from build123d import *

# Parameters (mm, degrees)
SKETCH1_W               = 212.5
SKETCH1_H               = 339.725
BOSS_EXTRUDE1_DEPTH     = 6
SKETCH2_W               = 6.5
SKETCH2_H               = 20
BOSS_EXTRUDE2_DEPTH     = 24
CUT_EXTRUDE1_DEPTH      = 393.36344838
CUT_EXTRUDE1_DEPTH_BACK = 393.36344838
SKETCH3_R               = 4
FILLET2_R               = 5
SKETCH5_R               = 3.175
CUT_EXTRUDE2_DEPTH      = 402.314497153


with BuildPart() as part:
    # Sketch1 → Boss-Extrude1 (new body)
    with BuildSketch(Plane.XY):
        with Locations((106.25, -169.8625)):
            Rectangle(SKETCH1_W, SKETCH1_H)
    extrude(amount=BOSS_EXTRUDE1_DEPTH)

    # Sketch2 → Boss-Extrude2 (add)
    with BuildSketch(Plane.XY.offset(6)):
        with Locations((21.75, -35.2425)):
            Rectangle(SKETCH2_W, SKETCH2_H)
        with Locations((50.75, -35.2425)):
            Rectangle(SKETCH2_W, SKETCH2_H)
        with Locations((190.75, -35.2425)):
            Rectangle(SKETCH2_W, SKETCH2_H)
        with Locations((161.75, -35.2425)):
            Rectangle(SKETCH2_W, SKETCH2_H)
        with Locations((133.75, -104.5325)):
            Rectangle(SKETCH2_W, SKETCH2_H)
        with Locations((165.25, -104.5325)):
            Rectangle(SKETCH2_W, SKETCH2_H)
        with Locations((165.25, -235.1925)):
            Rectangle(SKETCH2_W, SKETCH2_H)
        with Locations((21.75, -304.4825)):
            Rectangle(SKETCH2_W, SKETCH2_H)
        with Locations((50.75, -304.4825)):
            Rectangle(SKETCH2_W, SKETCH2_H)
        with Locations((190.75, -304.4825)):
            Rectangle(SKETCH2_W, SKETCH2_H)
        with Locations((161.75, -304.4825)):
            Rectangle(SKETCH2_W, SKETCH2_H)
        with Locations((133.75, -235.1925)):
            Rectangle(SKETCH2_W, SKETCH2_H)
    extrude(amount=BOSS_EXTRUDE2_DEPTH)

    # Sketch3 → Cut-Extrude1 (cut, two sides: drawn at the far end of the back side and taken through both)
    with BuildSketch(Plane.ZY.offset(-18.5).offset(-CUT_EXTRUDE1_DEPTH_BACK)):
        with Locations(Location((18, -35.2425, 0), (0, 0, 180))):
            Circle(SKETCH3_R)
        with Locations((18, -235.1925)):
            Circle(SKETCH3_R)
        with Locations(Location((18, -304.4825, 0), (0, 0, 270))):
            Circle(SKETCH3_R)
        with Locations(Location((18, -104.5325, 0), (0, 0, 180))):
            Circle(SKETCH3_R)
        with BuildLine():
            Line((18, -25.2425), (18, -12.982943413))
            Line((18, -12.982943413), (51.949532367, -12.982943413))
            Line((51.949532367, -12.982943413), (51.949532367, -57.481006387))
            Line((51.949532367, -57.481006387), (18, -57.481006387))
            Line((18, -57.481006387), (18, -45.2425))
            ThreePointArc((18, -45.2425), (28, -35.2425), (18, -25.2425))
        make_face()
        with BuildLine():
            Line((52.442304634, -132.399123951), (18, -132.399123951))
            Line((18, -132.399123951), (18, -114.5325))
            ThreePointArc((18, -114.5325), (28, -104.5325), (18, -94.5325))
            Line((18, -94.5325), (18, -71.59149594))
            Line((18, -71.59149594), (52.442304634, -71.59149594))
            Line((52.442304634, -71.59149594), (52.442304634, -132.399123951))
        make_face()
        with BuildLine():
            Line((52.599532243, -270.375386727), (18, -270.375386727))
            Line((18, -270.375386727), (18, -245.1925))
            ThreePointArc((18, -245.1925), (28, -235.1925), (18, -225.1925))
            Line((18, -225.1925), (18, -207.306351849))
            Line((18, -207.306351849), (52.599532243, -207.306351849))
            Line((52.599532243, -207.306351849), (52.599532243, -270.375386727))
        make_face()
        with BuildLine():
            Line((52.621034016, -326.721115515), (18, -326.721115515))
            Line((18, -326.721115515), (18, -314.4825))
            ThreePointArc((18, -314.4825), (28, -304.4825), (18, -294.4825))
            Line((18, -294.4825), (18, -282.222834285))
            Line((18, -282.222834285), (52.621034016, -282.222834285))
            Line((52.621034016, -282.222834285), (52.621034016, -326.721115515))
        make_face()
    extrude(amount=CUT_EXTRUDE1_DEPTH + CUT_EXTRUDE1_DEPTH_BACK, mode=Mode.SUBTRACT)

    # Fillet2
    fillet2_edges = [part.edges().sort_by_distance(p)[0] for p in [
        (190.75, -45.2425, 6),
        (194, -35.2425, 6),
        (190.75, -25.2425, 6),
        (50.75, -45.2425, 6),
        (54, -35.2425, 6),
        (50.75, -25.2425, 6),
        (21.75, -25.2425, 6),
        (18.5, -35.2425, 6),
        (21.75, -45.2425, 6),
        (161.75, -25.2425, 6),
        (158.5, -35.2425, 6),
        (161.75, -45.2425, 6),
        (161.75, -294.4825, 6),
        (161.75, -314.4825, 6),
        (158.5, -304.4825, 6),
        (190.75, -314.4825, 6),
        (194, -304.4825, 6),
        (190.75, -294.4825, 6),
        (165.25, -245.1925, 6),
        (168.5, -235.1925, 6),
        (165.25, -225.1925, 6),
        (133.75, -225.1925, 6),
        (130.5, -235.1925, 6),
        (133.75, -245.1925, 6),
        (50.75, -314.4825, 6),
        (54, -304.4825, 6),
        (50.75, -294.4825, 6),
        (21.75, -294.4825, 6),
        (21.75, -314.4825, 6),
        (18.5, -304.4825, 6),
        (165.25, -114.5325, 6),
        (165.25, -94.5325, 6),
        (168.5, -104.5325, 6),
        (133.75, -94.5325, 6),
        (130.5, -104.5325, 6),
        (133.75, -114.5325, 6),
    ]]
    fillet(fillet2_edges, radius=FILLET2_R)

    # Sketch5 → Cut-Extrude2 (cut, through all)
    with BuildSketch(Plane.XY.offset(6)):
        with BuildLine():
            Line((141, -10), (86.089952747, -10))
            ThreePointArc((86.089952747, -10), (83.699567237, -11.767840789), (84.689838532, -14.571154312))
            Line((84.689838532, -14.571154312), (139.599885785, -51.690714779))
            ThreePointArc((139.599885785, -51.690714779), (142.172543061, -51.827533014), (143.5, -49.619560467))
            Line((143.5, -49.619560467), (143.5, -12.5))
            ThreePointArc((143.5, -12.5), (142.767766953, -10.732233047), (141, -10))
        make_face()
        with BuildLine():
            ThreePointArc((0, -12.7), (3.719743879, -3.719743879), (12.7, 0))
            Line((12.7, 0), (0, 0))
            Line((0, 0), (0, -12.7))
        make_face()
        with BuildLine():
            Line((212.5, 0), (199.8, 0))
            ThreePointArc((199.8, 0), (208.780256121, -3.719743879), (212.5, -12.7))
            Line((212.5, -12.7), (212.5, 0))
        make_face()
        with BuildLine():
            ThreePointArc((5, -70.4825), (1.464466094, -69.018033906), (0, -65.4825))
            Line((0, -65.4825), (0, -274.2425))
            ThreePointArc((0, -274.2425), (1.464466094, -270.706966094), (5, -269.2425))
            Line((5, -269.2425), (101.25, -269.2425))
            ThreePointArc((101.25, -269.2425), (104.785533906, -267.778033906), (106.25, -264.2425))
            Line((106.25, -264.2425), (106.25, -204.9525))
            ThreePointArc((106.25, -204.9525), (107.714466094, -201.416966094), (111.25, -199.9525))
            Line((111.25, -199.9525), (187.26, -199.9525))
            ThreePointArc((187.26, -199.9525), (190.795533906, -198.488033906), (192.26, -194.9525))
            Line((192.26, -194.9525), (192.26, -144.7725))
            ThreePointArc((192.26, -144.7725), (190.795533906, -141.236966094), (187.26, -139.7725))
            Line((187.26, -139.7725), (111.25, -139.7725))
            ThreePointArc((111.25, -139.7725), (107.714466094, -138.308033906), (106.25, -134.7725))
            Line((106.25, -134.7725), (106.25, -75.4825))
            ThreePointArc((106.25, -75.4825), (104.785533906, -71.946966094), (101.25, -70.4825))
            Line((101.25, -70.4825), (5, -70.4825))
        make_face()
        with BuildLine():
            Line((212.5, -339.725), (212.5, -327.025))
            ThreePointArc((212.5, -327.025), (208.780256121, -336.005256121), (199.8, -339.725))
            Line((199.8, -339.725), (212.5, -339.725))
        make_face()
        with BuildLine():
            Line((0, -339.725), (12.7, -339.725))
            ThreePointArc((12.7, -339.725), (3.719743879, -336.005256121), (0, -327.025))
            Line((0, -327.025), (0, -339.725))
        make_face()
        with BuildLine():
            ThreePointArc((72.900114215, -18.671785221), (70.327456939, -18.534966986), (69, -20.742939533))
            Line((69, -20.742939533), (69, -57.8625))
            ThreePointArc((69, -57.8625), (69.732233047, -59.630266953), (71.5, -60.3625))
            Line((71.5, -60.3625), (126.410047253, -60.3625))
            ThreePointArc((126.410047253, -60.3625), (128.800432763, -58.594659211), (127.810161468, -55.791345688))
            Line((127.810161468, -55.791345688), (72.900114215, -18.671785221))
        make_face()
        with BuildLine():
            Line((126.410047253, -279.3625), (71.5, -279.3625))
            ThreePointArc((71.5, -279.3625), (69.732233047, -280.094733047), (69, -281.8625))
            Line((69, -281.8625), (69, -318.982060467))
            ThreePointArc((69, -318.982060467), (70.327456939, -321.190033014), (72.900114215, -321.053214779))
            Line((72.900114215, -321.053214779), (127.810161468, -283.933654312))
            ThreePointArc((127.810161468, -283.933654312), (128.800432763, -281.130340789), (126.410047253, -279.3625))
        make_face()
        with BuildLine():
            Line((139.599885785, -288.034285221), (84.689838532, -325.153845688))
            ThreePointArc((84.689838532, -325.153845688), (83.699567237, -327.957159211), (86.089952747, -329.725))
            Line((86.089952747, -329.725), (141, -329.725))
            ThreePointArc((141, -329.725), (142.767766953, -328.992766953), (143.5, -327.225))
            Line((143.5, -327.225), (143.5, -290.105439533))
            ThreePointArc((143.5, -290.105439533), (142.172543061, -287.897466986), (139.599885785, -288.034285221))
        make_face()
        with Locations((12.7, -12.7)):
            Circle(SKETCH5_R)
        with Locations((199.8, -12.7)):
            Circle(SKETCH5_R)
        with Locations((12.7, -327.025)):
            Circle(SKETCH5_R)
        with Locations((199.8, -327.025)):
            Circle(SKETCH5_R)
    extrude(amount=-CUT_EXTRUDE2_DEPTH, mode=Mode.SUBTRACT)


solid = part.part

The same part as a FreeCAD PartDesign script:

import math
import FreeCAD as App
import Part
import Sketcher

V = App.Vector


def edges_at(feature, points):
    """Names of the edges that pass closest to the given points."""
    edges = feature.Shape.Edges
    near = lambda p: min(range(len(edges)), key=lambda i: edges[i].distToShape(Part.Vertex(*p))[0])
    return sorted({f"Edge{near(p) + 1}" for p in points})

doc = App.newDocument("Part")
body = doc.addObject("PartDesign::Body", "Body")

# Sketch on XY plane
sketch1 = body.newObject("Sketcher::SketchObject", "Sketch")
sketch1.AttachmentSupport = (doc.getObject("XY_Plane"), [""])
sketch1.MapMode = "FlatFace"
sketch1.addGeometry([
    Part.LineSegment(V(0, 0, 0), V(0, -339.725, 0)),
    Part.LineSegment(V(0, -339.725, 0), V(212.5, -339.725, 0)),
    Part.LineSegment(V(212.5, -339.725, 0), V(212.5, 0, 0)),
    Part.LineSegment(V(212.5, 0, 0), V(0, 0, 0)),
], False)
sketch1.addConstraint([
    Sketcher.Constraint("Coincident", 0, 2, 1, 1),
    Sketcher.Constraint("Coincident", 1, 2, 2, 1),
    Sketcher.Constraint("Coincident", 2, 2, 3, 1),
    Sketcher.Constraint("Coincident", 3, 2, 0, 1),
    Sketcher.Constraint("Vertical", 0),
    Sketcher.Constraint("Horizontal", 1),
    Sketcher.Constraint("Vertical", 2),
    Sketcher.Constraint("Horizontal", 3),
    Sketcher.Constraint("Coincident", 3, 2, -1, 1),
    Sketcher.Constraint("DistanceX", 1, 1, 1, 2, 212.5),
    Sketcher.Constraint("DistanceY", 0, 2, 0, 1, 339.725),
])
pad1 = body.newObject("PartDesign::Pad", "Pad")
pad1.Profile = sketch1
pad1.Length = 6

# Sketch on XY plane
sketch2 = body.newObject("Sketcher::SketchObject", "Sketch001")
sketch2.AttachmentSupport = (doc.getObject("XY_Plane"), [""])
sketch2.MapMode = "FlatFace"
sketch2.AttachmentOffset = App.Placement(V(0, 0, 6), App.Rotation())
sketch2.addGeometry([
    Part.LineSegment(V(18.5, -25.2425, 0), V(18.5, -45.2425, 0)),  # 0
    Part.LineSegment(V(18.5, -45.2425, 0), V(25, -45.2425, 0)),  # 1
    Part.LineSegment(V(25, -45.2425, 0), V(25, -25.2425, 0)),  # 2
    Part.LineSegment(V(25, -25.2425, 0), V(18.5, -25.2425, 0)),  # 3
    Part.LineSegment(V(47.5, -25.2425, 0), V(47.5, -45.2425, 0)),  # 4
    Part.LineSegment(V(47.5, -45.2425, 0), V(54, -45.2425, 0)),  # 5
    Part.LineSegment(V(54, -45.2425, 0), V(54, -25.2425, 0)),  # 6
    Part.LineSegment(V(54, -25.2425, 0), V(47.5, -25.2425, 0)),  # 7
    Part.LineSegment(V(187.5, -25.2425, 0), V(187.5, -45.2425, 0)),  # 8
    Part.LineSegment(V(187.5, -45.2425, 0), V(194, -45.2425, 0)),  # 9
    Part.LineSegment(V(194, -45.2425, 0), V(194, -25.2425, 0)),  # 10
    Part.LineSegment(V(194, -25.2425, 0), V(187.5, -25.2425, 0)),  # 11
    Part.LineSegment(V(158.5, -25.2425, 0), V(158.5, -45.2425, 0)),  # 12
    Part.LineSegment(V(158.5, -45.2425, 0), V(165, -45.2425, 0)),  # 13
    Part.LineSegment(V(165, -45.2425, 0), V(165, -25.2425, 0)),  # 14
    Part.LineSegment(V(165, -25.2425, 0), V(158.5, -25.2425, 0)),  # 15
    Part.LineSegment(V(130.5, -94.5325, 0), V(130.5, -114.5325, 0)),  # 16
    Part.LineSegment(V(130.5, -114.5325, 0), V(137, -114.5325, 0)),  # 17
    Part.LineSegment(V(137, -114.5325, 0), V(137, -94.5325, 0)),  # 18
    Part.LineSegment(V(137, -94.5325, 0), V(130.5, -94.5325, 0)),  # 19
    Part.LineSegment(V(162, -94.5325, 0), V(162, -114.5325, 0)),  # 20
    Part.LineSegment(V(162, -114.5325, 0), V(168.5, -114.5325, 0)),  # 21
    Part.LineSegment(V(168.5, -114.5325, 0), V(168.5, -94.5325, 0)),  # 22
    Part.LineSegment(V(168.5, -94.5325, 0), V(162, -94.5325, 0)),  # 23
    Part.LineSegment(V(162, -225.1925, 0), V(162, -245.1925, 0)),  # 24
    Part.LineSegment(V(162, -245.1925, 0), V(168.5, -245.1925, 0)),  # 25
    Part.LineSegment(V(168.5, -245.1925, 0), V(168.5, -225.1925, 0)),  # 26
    Part.LineSegment(V(168.5, -225.1925, 0), V(162, -225.1925, 0)),  # 27
    Part.LineSegment(V(18.5, -294.4825, 0), V(18.5, -314.4825, 0)),  # 28
    Part.LineSegment(V(18.5, -314.4825, 0), V(25, -314.4825, 0)),  # 29
    Part.LineSegment(V(25, -314.4825, 0), V(25, -294.4825, 0)),  # 30
    Part.LineSegment(V(25, -294.4825, 0), V(18.5, -294.4825, 0)),  # 31
    Part.LineSegment(V(47.5, -294.4825, 0), V(47.5, -314.4825, 0)),  # 32
    Part.LineSegment(V(47.5, -314.4825, 0), V(54, -314.4825, 0)),  # 33
    Part.LineSegment(V(54, -314.4825, 0), V(54, -294.4825, 0)),  # 34
    Part.LineSegment(V(54, -294.4825, 0), V(47.5, -294.4825, 0)),  # 35
    Part.LineSegment(V(187.5, -294.4825, 0), V(187.5, -314.4825, 0)),  # 36
    Part.LineSegment(V(187.5, -314.4825, 0), V(194, -314.4825, 0)),  # 37
    Part.LineSegment(V(194, -314.4825, 0), V(194, -294.4825, 0)),  # 38
    Part.LineSegment(V(194, -294.4825, 0), V(187.5, -294.4825, 0)),  # 39
    Part.LineSegment(V(158.5, -294.4825, 0), V(158.5, -314.4825, 0)),  # 40
    Part.LineSegment(V(158.5, -314.4825, 0), V(165, -314.4825, 0)),  # 41
    Part.LineSegment(V(165, -314.4825, 0), V(165, -294.4825, 0)),  # 42
    Part.LineSegment(V(165, -294.4825, 0), V(158.5, -294.4825, 0)),  # 43
    Part.LineSegment(V(130.5, -225.1925, 0), V(130.5, -245.1925, 0)),  # 44
    Part.LineSegment(V(130.5, -245.1925, 0), V(137, -245.1925, 0)),  # 45
    Part.LineSegment(V(137, -245.1925, 0), V(137, -225.1925, 0)),  # 46
    Part.LineSegment(V(137, -225.1925, 0), V(130.5, -225.1925, 0)),  # 47
], False)
sketch2.addConstraint([
    Sketcher.Constraint("Coincident", 0, 2, 1, 1),
    Sketcher.Constraint("Coincident", 1, 2, 2, 1),
    Sketcher.Constraint("Coincident", 2, 2, 3, 1),
    Sketcher.Constraint("Coincident", 3, 2, 0, 1),
    Sketcher.Constraint("Coincident", 4, 2, 5, 1),
    Sketcher.Constraint("Coincident", 5, 2, 6, 1),
    Sketcher.Constraint("Coincident", 6, 2, 7, 1),
    Sketcher.Constraint("Coincident", 7, 2, 4, 1),
    Sketcher.Constraint("Coincident", 8, 2, 9, 1),
    Sketcher.Constraint("Coincident", 9, 2, 10, 1),
    Sketcher.Constraint("Coincident", 10, 2, 11, 1),
    Sketcher.Constraint("Coincident", 11, 2, 8, 1),
    Sketcher.Constraint("Coincident", 12, 2, 13, 1),
    Sketcher.Constraint("Coincident", 13, 2, 14, 1),
    Sketcher.Constraint("Coincident", 14, 2, 15, 1),
    Sketcher.Constraint("Coincident", 15, 2, 12, 1),
    Sketcher.Constraint("Coincident", 16, 2, 17, 1),
    Sketcher.Constraint("Coincident", 17, 2, 18, 1),
    Sketcher.Constraint("Coincident", 18, 2, 19, 1),
    Sketcher.Constraint("Coincident", 19, 2, 16, 1),
    Sketcher.Constraint("Coincident", 20, 2, 21, 1),
    Sketcher.Constraint("Coincident", 21, 2, 22, 1),
    Sketcher.Constraint("Coincident", 22, 2, 23, 1),
    Sketcher.Constraint("Coincident", 23, 2, 20, 1),
    Sketcher.Constraint("Coincident", 24, 2, 25, 1),
    Sketcher.Constraint("Coincident", 25, 2, 26, 1),
    Sketcher.Constraint("Coincident", 26, 2, 27, 1),
    Sketcher.Constraint("Coincident", 27, 2, 24, 1),
    Sketcher.Constraint("Coincident", 28, 2, 29, 1),
    Sketcher.Constraint("Coincident", 29, 2, 30, 1),
    Sketcher.Constraint("Coincident", 30, 2, 31, 1),
    Sketcher.Constraint("Coincident", 31, 2, 28, 1),
    Sketcher.Constraint("Coincident", 32, 2, 33, 1),
    Sketcher.Constraint("Coincident", 33, 2, 34, 1),
    Sketcher.Constraint("Coincident", 34, 2, 35, 1),
    Sketcher.Constraint("Coincident", 35, 2, 32, 1),
    Sketcher.Constraint("Coincident", 36, 2, 37, 1),
    Sketcher.Constraint("Coincident", 37, 2, 38, 1),
    Sketcher.Constraint("Coincident", 38, 2, 39, 1),
    Sketcher.Constraint("Coincident", 39, 2, 36, 1),
    Sketcher.Constraint("Coincident", 40, 2, 41, 1),
    Sketcher.Constraint("Coincident", 41, 2, 42, 1),
    Sketcher.Constraint("Coincident", 42, 2, 43, 1),
    Sketcher.Constraint("Coincident", 43, 2, 40, 1),
    Sketcher.Constraint("Coincident", 44, 2, 45, 1),
    Sketcher.Constraint("Coincident", 45, 2, 46, 1),
    Sketcher.Constraint("Coincident", 46, 2, 47, 1),
    Sketcher.Constraint("Coincident", 47, 2, 44, 1),
    Sketcher.Constraint("Vertical", 0),
    Sketcher.Constraint("Horizontal", 1),
    Sketcher.Constraint("Vertical", 2),
    Sketcher.Constraint("Horizontal", 3),
    Sketcher.Constraint("Vertical", 4),
    Sketcher.Constraint("Horizontal", 5),
    Sketcher.Constraint("Vertical", 6),
    Sketcher.Constraint("Horizontal", 7),
    Sketcher.Constraint("Vertical", 8),
    Sketcher.Constraint("Horizontal", 9),
    Sketcher.Constraint("Vertical", 10),
    Sketcher.Constraint("Horizontal", 11),
    Sketcher.Constraint("Vertical", 12),
    Sketcher.Constraint("Horizontal", 13),
    Sketcher.Constraint("Vertical", 14),
    Sketcher.Constraint("Horizontal", 15),
    Sketcher.Constraint("Vertical", 16),
    Sketcher.Constraint("Horizontal", 17),
    Sketcher.Constraint("Vertical", 18),
    Sketcher.Constraint("Horizontal", 19),
    Sketcher.Constraint("Vertical", 20),
    Sketcher.Constraint("Horizontal", 21),
    Sketcher.Constraint("Vertical", 22),
    Sketcher.Constraint("Horizontal", 23),
    Sketcher.Constraint("Vertical", 24),
    Sketcher.Constraint("Horizontal", 25),
    Sketcher.Constraint("Vertical", 26),
    Sketcher.Constraint("Horizontal", 27),
    Sketcher.Constraint("Vertical", 28),
    Sketcher.Constraint("Horizontal", 29),
    Sketcher.Constraint("Vertical", 30),
    Sketcher.Constraint("Horizontal", 31),
    Sketcher.Constraint("Vertical", 32),
    Sketcher.Constraint("Horizontal", 33),
    Sketcher.Constraint("Vertical", 34),
    Sketcher.Constraint("Horizontal", 35),
    Sketcher.Constraint("Vertical", 36),
    Sketcher.Constraint("Horizontal", 37),
    Sketcher.Constraint("Vertical", 38),
    Sketcher.Constraint("Horizontal", 39),
    Sketcher.Constraint("Vertical", 40),
    Sketcher.Constraint("Horizontal", 41),
    Sketcher.Constraint("Vertical", 42),
    Sketcher.Constraint("Horizontal", 43),
    Sketcher.Constraint("Vertical", 44),
    Sketcher.Constraint("Horizontal", 45),
    Sketcher.Constraint("Vertical", 46),
    Sketcher.Constraint("Horizontal", 47),
    Sketcher.Constraint("Horizontal", 1, 2, 4, 2),
    Sketcher.Constraint("Horizontal", 3, 2, 6, 2),
    Sketcher.Constraint("Horizontal", 5, 2, 8, 2),
    Sketcher.Constraint("Horizontal", 7, 2, 10, 2),
    Sketcher.Constraint("Horizontal", 9, 2, 12, 2),
    Sketcher.Constraint("Horizontal", 11, 2, 14, 2),
    Sketcher.Constraint("Horizontal", 17, 2, 20, 2),
    Sketcher.Constraint("Horizontal", 19, 2, 22, 2),
    Sketcher.Constraint("Horizontal", 29, 2, 32, 2),
    Sketcher.Constraint("Horizontal", 31, 2, 34, 2),
    Sketcher.Constraint("Horizontal", 33, 2, 36, 2),
    Sketcher.Constraint("Horizontal", 35, 2, 38, 2),
    Sketcher.Constraint("Horizontal", 37, 2, 40, 2),
    Sketcher.Constraint("Horizontal", 39, 2, 42, 2),
    Sketcher.Constraint("Horizontal", 25, 2, 44, 2),
    Sketcher.Constraint("Horizontal", 27, 2, 46, 2),
    Sketcher.Constraint("Vertical", 23, 2, 24, 2),
    Sketcher.Constraint("Vertical", 22, 2, 25, 2),
    Sketcher.Constraint("Vertical", 3, 2, 28, 2),
    Sketcher.Constraint("Vertical", 2, 2, 29, 2),
    Sketcher.Constraint("Vertical", 7, 2, 32, 2),
    Sketcher.Constraint("Vertical", 6, 2, 33, 2),
    Sketcher.Constraint("Vertical", 11, 2, 36, 2),
    Sketcher.Constraint("Vertical", 10, 2, 37, 2),
    Sketcher.Constraint("Vertical", 15, 2, 40, 2),
    Sketcher.Constraint("Vertical", 14, 2, 41, 2),
    Sketcher.Constraint("Vertical", 19, 2, 44, 2),
    Sketcher.Constraint("Vertical", 18, 2, 45, 2),
    Sketcher.Constraint("Equal", 3, 5),
    Sketcher.Constraint("Equal", 7, 9),
    Sketcher.Constraint("Equal", 11, 13),
    Sketcher.Constraint("Equal", 15, 17),
    Sketcher.Constraint("Equal", 19, 21),
    Sketcher.Constraint("Equal", 14, 16),
    Sketcher.Constraint("Equal", 22, 24),
    Sketcher.Constraint("Equal", 26, 28),
    Sketcher.Constraint("DistanceY", 0, 2, 0, 1, 20.0),
    Sketcher.Constraint("DistanceX", 1, 1, 1, 2, 6.5),
    Sketcher.Constraint("DistanceX", -1, 1, 1, 2, 25.0),
    Sketcher.Constraint("DistanceX", -1, 1, 5, 2, 54.0),
    Sketcher.Constraint("DistanceX", -1, 1, 9, 2, 194.0),
    Sketcher.Constraint("DistanceX", -1, 1, 13, 2, 165.0),
    Sketcher.Constraint("DistanceX", -1, 1, 17, 2, 137.0),
    Sketcher.Constraint("DistanceX", -1, 1, 20, 2, 162.0),
    Sketcher.Constraint("DistanceY", 16, 2, 12, 2, 69.29),
    Sketcher.Constraint("DistanceY", 24, 2, 20, 2, 130.66),
    Sketcher.Constraint("DistanceY", 28, 2, 24, 2, 69.29),
    Sketcher.Constraint("DistanceY", 0, 2, -1, 1, 45.2425),
])
pad2 = body.newObject("PartDesign::Pad", "Pad001")
pad2.Profile = sketch2
pad2.Length = 24

# Sketch on YZ plane
sketch3 = body.newObject("Sketcher::SketchObject", "Sketch002")
sketch3.AttachmentSupport = (doc.getObject("YZ_Plane"), [""])
sketch3.MapMode = "FlatFace"
sketch3.AttachmentOffset = App.Placement(V(0, 0, 18.5), App.Rotation())
sketch3.addGeometry([
    Part.Circle(V(-35.2425, 18, 0), V(0, 0, 1), 4),  # 0
    Part.Circle(V(-235.1925, 18, 0), V(0, 0, 1), 4),  # 1
    Part.Circle(V(-304.4825, 18, 0), V(0, 0, 1), 4),  # 2
    Part.Circle(V(-104.5325, 18, 0), V(0, 0, 1), 4),  # 3
    Part.LineSegment(V(-12.982943, 18, 0), V(-25.2425, 18, 0)),  # 4
    Part.ArcOfCircle(Part.Circle(V(-35.2425, 18, 0), V(0, 0, 1), 10), math.radians(0), math.radians(180)),  # 5
    Part.LineSegment(V(-45.2425, 18, 0), V(-57.481006, 18, 0)),  # 6
    Part.LineSegment(V(-57.481006, 18, 0), V(-57.481006, 51.949532, 0)),  # 7
    Part.LineSegment(V(-57.481006, 51.949532, 0), V(-12.982943, 51.949532, 0)),  # 8
    Part.LineSegment(V(-12.982943, 51.949532, 0), V(-12.982943, 18, 0)),  # 9
    Part.LineSegment(V(-132.399124, 18, 0), V(-132.399124, 52.442305, 0)),  # 10
    Part.LineSegment(V(-132.399124, 52.442305, 0), V(-71.591496, 52.442305, 0)),  # 11
    Part.LineSegment(V(-71.591496, 52.442305, 0), V(-71.591496, 18, 0)),  # 12
    Part.LineSegment(V(-71.591496, 18, 0), V(-94.5325, 18, 0)),  # 13
    Part.ArcOfCircle(Part.Circle(V(-104.5325, 18, 0), V(0, 0, 1), 10), math.radians(0), math.radians(180)),  # 14
    Part.LineSegment(V(-114.5325, 18, 0), V(-132.399124, 18, 0)),  # 15
    Part.LineSegment(V(-270.375387, 18, 0), V(-270.375387, 52.599532, 0)),  # 16
    Part.LineSegment(V(-270.375387, 52.599532, 0), V(-207.306352, 52.599532, 0)),  # 17
    Part.LineSegment(V(-207.306352, 52.599532, 0), V(-207.306352, 18, 0)),  # 18
    Part.LineSegment(V(-207.306352, 18, 0), V(-225.1925, 18, 0)),  # 19
    Part.ArcOfCircle(Part.Circle(V(-235.1925, 18, 0), V(0, 0, 1), 10), math.radians(0), math.radians(180)),  # 20
    Part.LineSegment(V(-245.1925, 18, 0), V(-270.375387, 18, 0)),  # 21
    Part.LineSegment(V(-326.721116, 18, 0), V(-326.721116, 52.621034, 0)),  # 22
    Part.LineSegment(V(-326.721116, 52.621034, 0), V(-282.222834, 52.621034, 0)),  # 23
    Part.LineSegment(V(-282.222834, 52.621034, 0), V(-282.222834, 18, 0)),  # 24
    Part.LineSegment(V(-282.222834, 18, 0), V(-294.4825, 18, 0)),  # 25
    Part.ArcOfCircle(Part.Circle(V(-304.4825, 18, 0), V(0, 0, 1), 10), math.radians(0), math.radians(180)),  # 26
    Part.LineSegment(V(-314.4825, 18, 0), V(-326.721116, 18, 0)),  # 27
], False)
sketch3.addConstraint([
    Sketcher.Constraint("Coincident", 4, 2, 5, 1),
    Sketcher.Constraint("Coincident", 5, 2, 6, 1),
    Sketcher.Constraint("Coincident", 6, 2, 7, 1),
    Sketcher.Constraint("Coincident", 7, 2, 8, 1),
    Sketcher.Constraint("Coincident", 8, 2, 9, 1),
    Sketcher.Constraint("Coincident", 9, 2, 4, 1),
    Sketcher.Constraint("Coincident", 10, 2, 11, 1),
    Sketcher.Constraint("Coincident", 11, 2, 12, 1),
    Sketcher.Constraint("Coincident", 12, 2, 13, 1),
    Sketcher.Constraint("Coincident", 13, 2, 14, 1),
    Sketcher.Constraint("Coincident", 14, 2, 15, 1),
    Sketcher.Constraint("Coincident", 15, 2, 10, 1),
    Sketcher.Constraint("Coincident", 16, 2, 17, 1),
    Sketcher.Constraint("Coincident", 17, 2, 18, 1),
    Sketcher.Constraint("Coincident", 18, 2, 19, 1),
    Sketcher.Constraint("Coincident", 19, 2, 20, 1),
    Sketcher.Constraint("Coincident", 20, 2, 21, 1),
    Sketcher.Constraint("Coincident", 21, 2, 16, 1),
    Sketcher.Constraint("Coincident", 22, 2, 23, 1),
    Sketcher.Constraint("Coincident", 23, 2, 24, 1),
    Sketcher.Constraint("Coincident", 24, 2, 25, 1),
    Sketcher.Constraint("Coincident", 25, 2, 26, 1),
    Sketcher.Constraint("Coincident", 26, 2, 27, 1),
    Sketcher.Constraint("Coincident", 27, 2, 22, 1),
    Sketcher.Constraint("Horizontal", 4),
    Sketcher.Constraint("Horizontal", 6),
    Sketcher.Constraint("Vertical", 7),
    Sketcher.Constraint("Horizontal", 8),
    Sketcher.Constraint("Vertical", 9),
    Sketcher.Constraint("Vertical", 10),
    Sketcher.Constraint("Horizontal", 11),
    Sketcher.Constraint("Vertical", 12),
    Sketcher.Constraint("Horizontal", 13),
    Sketcher.Constraint("Horizontal", 15),
    Sketcher.Constraint("Vertical", 16),
    Sketcher.Constraint("Horizontal", 17),
    Sketcher.Constraint("Vertical", 18),
    Sketcher.Constraint("Horizontal", 19),
    Sketcher.Constraint("Horizontal", 21),
    Sketcher.Constraint("Vertical", 22),
    Sketcher.Constraint("Horizontal", 23),
    Sketcher.Constraint("Vertical", 24),
    Sketcher.Constraint("Horizontal", 25),
    Sketcher.Constraint("Horizontal", 27),
    Sketcher.Constraint("Coincident", 5, 3, 0, 3),
    Sketcher.Constraint("Coincident", 14, 3, 3, 3),
    Sketcher.Constraint("Coincident", 20, 3, 1, 3),
    Sketcher.Constraint("Coincident", 26, 3, 2, 3),
    Sketcher.Constraint("Equal", 0, 1),
    Sketcher.Constraint("Equal", 1, 2),
    Sketcher.Constraint("Equal", 2, 3),
    Sketcher.Constraint("Equal", 5, 14),
    Sketcher.Constraint("Equal", 14, 20),
    Sketcher.Constraint("Equal", 20, 26),
    Sketcher.Constraint("Horizontal", 0, 3, 1, 3),
    Sketcher.Constraint("Horizontal", 1, 3, 2, 3),
    Sketcher.Constraint("Horizontal", 2, 3, 3, 3),
    Sketcher.Constraint("Horizontal", 26, 3, 4, 2),
    Sketcher.Constraint("Horizontal", 4, 2, 5, 2),
    Sketcher.Constraint("Horizontal", 9, 2, 12, 2),
    Sketcher.Constraint("Horizontal", 13, 2, 14, 2),
    Sketcher.Constraint("Horizontal", 15, 2, 18, 2),
    Sketcher.Constraint("Horizontal", 19, 2, 20, 2),
    Sketcher.Constraint("Horizontal", 21, 2, 24, 2),
    Sketcher.Constraint("Horizontal", 25, 2, 26, 2),
    Sketcher.Constraint("Diameter", 0, 8.0),
    Sketcher.Constraint("Radius", 5, 10.0),
    Sketcher.Constraint("DistanceY", -1, 1, 0, 3, 18.0),
    Sketcher.Constraint("DistanceX", 1, 3, 0, 3, 199.95),
    Sketcher.Constraint("DistanceX", 2, 3, 1, 3, 69.29),
    Sketcher.Constraint("DistanceX", 3, 3, 0, 3, 69.29),
    Sketcher.Constraint("DistanceX", 11, 1, 11, 2, 60.807628),
    Sketcher.Constraint("DistanceX", 19, 2, 19, 1, 17.886148),
    Sketcher.Constraint("DistanceX", 23, 1, 23, 2, 44.498281),
    Sketcher.Constraint("DistanceX", 0, 3, -1, 1, 35.2425),
    Sketcher.Constraint("DistanceY", 16, 2, 22, 2, 0.021502),
    Sketcher.Constraint("DistanceX", 4, 2, 4, 1, 12.259557),
    Sketcher.Constraint("DistanceX", 6, 2, 6, 1, 12.238506),
    Sketcher.Constraint("DistanceX", 13, 2, 13, 1, 22.941004),
    Sketcher.Constraint("DistanceX", 17, 1, 17, 2, 63.069035),
    Sketcher.Constraint("DistanceX", 25, 2, 25, 1, 12.259666),
    Sketcher.Constraint("DistanceY", 7, 1, 7, 2, 33.949532),
    Sketcher.Constraint("DistanceY", 10, 1, 10, 2, 34.442305),
    Sketcher.Constraint("DistanceY", 16, 1, 16, 2, 34.599532),
])
pocket1 = body.newObject("PartDesign::Pocket", "Pocket")
pocket1.Profile = sketch3
pocket1.Type = "ThroughAll"
pocket1.Midplane = True
doc.recompute()

fillet = body.newObject("PartDesign::Fillet", "Fillet")
fillet.Base = (pocket1, edges_at(pocket1, [
    (190.75, -45.242, 6),
    (194, -35.242, 6),
    (190.75, -25.242, 6),
    (50.75, -45.242, 6),
    (54, -35.242, 6),
    (50.75, -25.242, 6),
    (21.75, -25.242, 6),
    (18.5, -35.242, 6),
    (21.75, -45.242, 6),
    (161.75, -25.242, 6),
    (158.5, -35.242, 6),
    (161.75, -45.242, 6),
    (161.75, -294.483, 6),
    (161.75, -314.483, 6),
    (158.5, -304.483, 6),
    (190.75, -314.483, 6),
    (194, -304.483, 6),
    (190.75, -294.483, 6),
    (165.25, -245.192, 6),
    (168.5, -235.192, 6),
    (165.25, -225.192, 6),
    (133.75, -225.192, 6),
    (130.5, -235.192, 6),
    (133.75, -245.192, 6),
    (50.75, -314.483, 6),
    (54, -304.483, 6),
    (50.75, -294.483, 6),
    (21.75, -294.483, 6),
    (21.75, -314.483, 6),
    (18.5, -304.483, 6),
    (165.25, -114.532, 6),
    (165.25, -94.532, 6),
    (168.5, -104.532, 6),
    (133.75, -94.532, 6),
    (130.5, -104.532, 6),
    (133.75, -114.532, 6),
]))
fillet.Radius = 5

# Sketch on XY plane
sketch4 = body.newObject("Sketcher::SketchObject", "Sketch003")
sketch4.AttachmentSupport = (doc.getObject("XY_Plane"), [""])
sketch4.MapMode = "FlatFace"
sketch4.AttachmentOffset = App.Placement(V(0, 0, 6), App.Rotation())
sketch4.addGeometry([
    Part.LineSegment(V(141, -10, 0), V(86.089953, -10, 0)),  # 0
    Part.ArcOfCircle(Part.Circle(V(86.089953, -12.5, 0), V(0, 0, 1), 2.5), math.radians(90), math.radians(235.941043)),  # 1
    Part.LineSegment(V(84.689839, -14.571154, 0), V(139.599886, -51.690715, 0)),  # 2
    Part.ArcOfCircle(Part.Circle(V(141, -49.61956, 0), V(0, 0, 1), 2.5), math.radians(-124.058957), math.radians(0)),  # 3
    Part.LineSegment(V(143.5, -49.61956, 0), V(143.5, -12.5, 0)),  # 4
    Part.ArcOfCircle(Part.Circle(V(141, -12.5, 0), V(0, 0, 1), 2.5), math.radians(0), math.radians(90)),  # 5
    Part.ArcOfCircle(Part.Circle(V(12.7, -12.7, 0), V(0, 0, 1), 12.7), math.radians(90), math.radians(180)),  # 6
    Part.LineSegment(V(12.7, 0, 0), V(0, 0, 0)),  # 7
    Part.LineSegment(V(0, 0, 0), V(0, -12.7, 0)),  # 8
    Part.LineSegment(V(212.5, 0, 0), V(199.8, 0, 0)),  # 9
    Part.ArcOfCircle(Part.Circle(V(199.8, -12.7, 0), V(0, 0, 1), 12.7), math.radians(0), math.radians(90)),  # 10
    Part.LineSegment(V(212.5, -12.7, 0), V(212.5, 0, 0)),  # 11
    Part.ArcOfCircle(Part.Circle(V(5, -65.4825, 0), V(0, 0, 1), 5), math.radians(180), math.radians(270)),  # 12
    Part.LineSegment(V(0, -65.4825, 0), V(0, -274.2425, 0)),  # 13
    Part.ArcOfCircle(Part.Circle(V(5, -274.2425, 0), V(0, 0, 1), 5), math.radians(90), math.radians(180)),  # 14
    Part.LineSegment(V(5, -269.2425, 0), V(101.25, -269.2425, 0)),  # 15
    Part.ArcOfCircle(Part.Circle(V(101.25, -264.2425, 0), V(0, 0, 1), 5), math.radians(-90), math.radians(0)),  # 16
    Part.LineSegment(V(106.25, -264.2425, 0), V(106.25, -204.9525, 0)),  # 17
    Part.ArcOfCircle(Part.Circle(V(111.25, -204.9525, 0), V(0, 0, 1), 5), math.radians(90), math.radians(180)),  # 18
    Part.LineSegment(V(111.25, -199.9525, 0), V(187.26, -199.9525, 0)),  # 19
    Part.ArcOfCircle(Part.Circle(V(187.26, -194.9525, 0), V(0, 0, 1), 5), math.radians(-90), math.radians(0)),  # 20
    Part.LineSegment(V(192.26, -194.9525, 0), V(192.26, -144.7725, 0)),  # 21
    Part.ArcOfCircle(Part.Circle(V(187.26, -144.7725, 0), V(0, 0, 1), 5), math.radians(0), math.radians(90)),  # 22
    Part.LineSegment(V(187.26, -139.7725, 0), V(111.25, -139.7725, 0)),  # 23
    Part.ArcOfCircle(Part.Circle(V(111.25, -134.7725, 0), V(0, 0, 1), 5), math.radians(180), math.radians(270)),  # 24
    Part.LineSegment(V(106.25, -134.7725, 0), V(106.25, -75.4825, 0)),  # 25
    Part.ArcOfCircle(Part.Circle(V(101.25, -75.4825, 0), V(0, 0, 1), 5), math.radians(0), math.radians(90)),  # 26
    Part.LineSegment(V(101.25, -70.4825, 0), V(5, -70.4825, 0)),  # 27
    Part.LineSegment(V(212.5, -339.725, 0), V(212.5, -327.025, 0)),  # 28
    Part.ArcOfCircle(Part.Circle(V(199.8, -327.025, 0), V(0, 0, 1), 12.7), math.radians(-90), math.radians(0)),  # 29
    Part.LineSegment(V(199.8, -339.725, 0), V(212.5, -339.725, 0)),  # 30
    Part.LineSegment(V(0, -339.725, 0), V(12.7, -339.725, 0)),  # 31
    Part.ArcOfCircle(Part.Circle(V(12.7, -327.025, 0), V(0, 0, 1), 12.7), math.radians(180), math.radians(270)),  # 32
    Part.LineSegment(V(0, -327.025, 0), V(0, -339.725, 0)),  # 33
    Part.ArcOfCircle(Part.Circle(V(71.5, -20.74294, 0), V(0, 0, 1), 2.5), math.radians(55.941043), math.radians(180)),  # 34
    Part.LineSegment(V(69, -20.74294, 0), V(69, -57.8625, 0)),  # 35
    Part.ArcOfCircle(Part.Circle(V(71.5, -57.8625, 0), V(0, 0, 1), 2.5), math.radians(180), math.radians(270)),  # 36
    Part.LineSegment(V(71.5, -60.3625, 0), V(126.410047, -60.3625, 0)),  # 37
    Part.ArcOfCircle(Part.Circle(V(126.410047, -57.8625, 0), V(0, 0, 1), 2.5), math.radians(-90), math.radians(55.941043)),  # 38
    Part.LineSegment(V(127.810161, -55.791346, 0), V(72.900114, -18.671785, 0)),  # 39
    Part.LineSegment(V(126.410047, -279.3625, 0), V(71.5, -279.3625, 0)),  # 40
    Part.ArcOfCircle(Part.Circle(V(71.5, -281.8625, 0), V(0, 0, 1), 2.5), math.radians(90), math.radians(180)),  # 41
    Part.LineSegment(V(69, -281.8625, 0), V(69, -318.98206, 0)),  # 42
    Part.ArcOfCircle(Part.Circle(V(71.5, -318.98206, 0), V(0, 0, 1), 2.5), math.radians(-180), math.radians(-55.941043)),  # 43
    Part.LineSegment(V(72.900114, -321.053215, 0), V(127.810161, -283.933654, 0)),  # 44
    Part.ArcOfCircle(Part.Circle(V(126.410047, -281.8625, 0), V(0, 0, 1), 2.5), math.radians(-55.941043), math.radians(90)),  # 45
    Part.LineSegment(V(139.599886, -288.034285, 0), V(84.689839, -325.153846, 0)),  # 46
    Part.ArcOfCircle(Part.Circle(V(86.089953, -327.225, 0), V(0, 0, 1), 2.5), math.radians(124.058957), math.radians(270)),  # 47
    Part.LineSegment(V(86.089953, -329.725, 0), V(141, -329.725, 0)),  # 48
    Part.ArcOfCircle(Part.Circle(V(141, -327.225, 0), V(0, 0, 1), 2.5), math.radians(-90), math.radians(0)),  # 49
    Part.LineSegment(V(143.5, -327.225, 0), V(143.5, -290.10544, 0)),  # 50
    Part.ArcOfCircle(Part.Circle(V(141, -290.10544, 0), V(0, 0, 1), 2.5), math.radians(0), math.radians(124.058957)),  # 51
    Part.Circle(V(12.7, -12.7, 0), V(0, 0, 1), 3.175),  # 52
    Part.Circle(V(199.8, -12.7, 0), V(0, 0, 1), 3.175),  # 53
    Part.Circle(V(12.7, -327.025, 0), V(0, 0, 1), 3.175),  # 54
    Part.Circle(V(199.8, -327.025, 0), V(0, 0, 1), 3.175),  # 55
], False)
sketch4.addConstraint([
    Sketcher.Constraint("Tangent", 0, 2, 1, 1),
    Sketcher.Constraint("Tangent", 1, 2, 2, 1),
    Sketcher.Constraint("Tangent", 2, 2, 3, 1),
    Sketcher.Constraint("Tangent", 3, 2, 4, 1),
    Sketcher.Constraint("Tangent", 4, 2, 5, 1),
    Sketcher.Constraint("Tangent", 5, 2, 0, 1),
    Sketcher.Constraint("Tangent", 6, 1, 7, 1),
    Sketcher.Constraint("Coincident", 7, 2, 8, 1),
    Sketcher.Constraint("Tangent", 8, 2, 6, 2),
    Sketcher.Constraint("Tangent", 9, 2, 10, 2),
    Sketcher.Constraint("Tangent", 10, 1, 11, 1),
    Sketcher.Constraint("Coincident", 11, 2, 9, 1),
    Sketcher.Constraint("Tangent", 12, 1, 13, 1),
    Sketcher.Constraint("Tangent", 13, 2, 14, 2),
    Sketcher.Constraint("Tangent", 14, 1, 15, 1),
    Sketcher.Constraint("Tangent", 15, 2, 16, 1),
    Sketcher.Constraint("Tangent", 16, 2, 17, 1),
    Sketcher.Constraint("Tangent", 17, 2, 18, 2),
    Sketcher.Constraint("Tangent", 18, 1, 19, 1),
    Sketcher.Constraint("Tangent", 19, 2, 20, 1),
    Sketcher.Constraint("Tangent", 20, 2, 21, 1),
    Sketcher.Constraint("Tangent", 21, 2, 22, 1),
    Sketcher.Constraint("Tangent", 22, 2, 23, 1),
    Sketcher.Constraint("Tangent", 23, 2, 24, 2),
    Sketcher.Constraint("Tangent", 24, 1, 25, 1),
    Sketcher.Constraint("Tangent", 25, 2, 26, 1),
    Sketcher.Constraint("Tangent", 26, 2, 27, 1),
    Sketcher.Constraint("Tangent", 27, 2, 12, 2),
    Sketcher.Constraint("Tangent", 28, 2, 29, 2),
    Sketcher.Constraint("Tangent", 29, 1, 30, 1),
    Sketcher.Constraint("Coincident", 30, 2, 28, 1),
    Sketcher.Constraint("Tangent", 31, 2, 32, 2),
    Sketcher.Constraint("Tangent", 32, 1, 33, 1),
    Sketcher.Constraint("Coincident", 33, 2, 31, 1),
    Sketcher.Constraint("Tangent", 34, 2, 35, 1),
    Sketcher.Constraint("Tangent", 35, 2, 36, 1),
    Sketcher.Constraint("Tangent", 36, 2, 37, 1),
    Sketcher.Constraint("Tangent", 37, 2, 38, 1),
    Sketcher.Constraint("Tangent", 38, 2, 39, 1),
    Sketcher.Constraint("Tangent", 39, 2, 34, 1),
    Sketcher.Constraint("Tangent", 40, 2, 41, 1),
    Sketcher.Constraint("Tangent", 41, 2, 42, 1),
    Sketcher.Constraint("Tangent", 42, 2, 43, 1),
    Sketcher.Constraint("Tangent", 43, 2, 44, 1),
    Sketcher.Constraint("Tangent", 44, 2, 45, 1),
    Sketcher.Constraint("Tangent", 45, 2, 40, 1),
    Sketcher.Constraint("Tangent", 46, 2, 47, 1),
    Sketcher.Constraint("Tangent", 47, 2, 48, 1),
    Sketcher.Constraint("Tangent", 48, 2, 49, 1),
    Sketcher.Constraint("Tangent", 49, 2, 50, 1),
    Sketcher.Constraint("Tangent", 50, 2, 51, 1),
    Sketcher.Constraint("Tangent", 51, 2, 46, 1),
    Sketcher.Constraint("Horizontal", 0),
    Sketcher.Constraint("Vertical", 4),
    Sketcher.Constraint("Horizontal", 7),
    Sketcher.Constraint("Vertical", 8),
    Sketcher.Constraint("Horizontal", 9),
    Sketcher.Constraint("Vertical", 11),
    Sketcher.Constraint("Vertical", 13),
    Sketcher.Constraint("Horizontal", 15),
    Sketcher.Constraint("Vertical", 17),
    Sketcher.Constraint("Horizontal", 19),
    Sketcher.Constraint("Vertical", 21),
    Sketcher.Constraint("Horizontal", 23),
    Sketcher.Constraint("Vertical", 25),
    Sketcher.Constraint("Horizontal", 27),
    Sketcher.Constraint("Vertical", 28),
    Sketcher.Constraint("Horizontal", 30),
    Sketcher.Constraint("Horizontal", 31),
    Sketcher.Constraint("Vertical", 33),
    Sketcher.Constraint("Vertical", 35),
    Sketcher.Constraint("Horizontal", 37),
    Sketcher.Constraint("Horizontal", 40),
    Sketcher.Constraint("Vertical", 42),
    Sketcher.Constraint("Horizontal", 48),
    Sketcher.Constraint("Vertical", 50),
    Sketcher.Constraint("Coincident", 7, 2, -1, 1),
    Sketcher.Constraint("Coincident", 52, 3, 6, 3),
    Sketcher.Constraint("Coincident", 53, 3, 10, 3),
    Sketcher.Constraint("Coincident", 54, 3, 32, 3),
    Sketcher.Constraint("Coincident", 55, 3, 29, 3),
    Sketcher.Constraint("Equal", 1, 3),
    Sketcher.Constraint("Equal", 3, 5),
    Sketcher.Constraint("Equal", 6, 10),
    Sketcher.Constraint("Equal", 12, 14),
    Sketcher.Constraint("Equal", 14, 16),
    Sketcher.Constraint("Equal", 16, 18),
    Sketcher.Constraint("Equal", 18, 20),
    Sketcher.Constraint("Equal", 20, 22),
    Sketcher.Constraint("Equal", 22, 24),
    Sketcher.Constraint("Equal", 24, 26),
    Sketcher.Constraint("Equal", 10, 29),
    Sketcher.Constraint("Equal", 29, 32),
    Sketcher.Constraint("Equal", 5, 34),
    Sketcher.Constraint("Equal", 34, 36),
    Sketcher.Constraint("Equal", 36, 38),
    Sketcher.Constraint("Equal", 38, 41),
    Sketcher.Constraint("Equal", 41, 43),
    Sketcher.Constraint("Equal", 43, 45),
    Sketcher.Constraint("Equal", 45, 47),
    Sketcher.Constraint("Equal", 47, 49),
    Sketcher.Constraint("Equal", 49, 51),
    Sketcher.Constraint("Equal", 52, 53),
    Sketcher.Constraint("Equal", 53, 54),
    Sketcher.Constraint("Equal", 54, 55),
    Sketcher.Constraint("PointOnObject", 9, 2, -1),
    Sketcher.Constraint("PointOnObject", 12, 1, -2),
    Sketcher.Constraint("PointOnObject", 32, 1, -2),
    Sketcher.Constraint("Parallel", 2, 39),
    Sketcher.Constraint("Parallel", 44, 46),
    Sketcher.Constraint("Horizontal", 29, 3, 32, 3),
    Sketcher.Constraint("Vertical", 18, 3, 24, 3),
    Sketcher.Constraint("Vertical", 10, 3, 29, 3),
    Sketcher.Constraint("Vertical", 36, 3, 41, 3),
    Sketcher.Constraint("Vertical", 38, 3, 45, 3),
    Sketcher.Constraint("Vertical", 1, 3, 47, 3),
    Sketcher.Constraint("Vertical", 5, 3, 49, 3),
    Sketcher.Constraint("Vertical", 39, 2, 43, 2),
    Sketcher.Constraint("Equal", 0, 37),
    Sketcher.Constraint("Equal", 17, 25),
    Sketcher.Constraint("Radius", 12, 5.0),
    Sketcher.Constraint("Radius", 1, 2.5),
    Sketcher.Constraint("Radius", 6, 12.7),
    Sketcher.Constraint("Diameter", 52, 6.35),
    Sketcher.Constraint("DistanceX", -1, 1, 3, 3, 141.0),
    Sketcher.Constraint("DistanceY", 0, 2, -1, 1, 10.0),
    Sketcher.Constraint("DistanceX", -1, 1, 34, 2, 69.0),
    Sketcher.Constraint("DistanceX", 15, 1, 15, 2, 96.25),
    Sketcher.Constraint("DistanceX", 19, 1, 19, 2, 76.01),
    Sketcher.Constraint("DistanceY", 13, 2, 13, 1, 208.76),
    Sketcher.Constraint("DistanceY", 17, 1, 17, 2, 59.29),
    Sketcher.Constraint("DistanceX", -1, 1, 10, 3, 199.8),
    Sketcher.Constraint("DistanceY", 29, 3, -1, 1, 327.025),
    Sketcher.Constraint("DistanceY", 47, 3, -1, 1, 327.225),
    Sketcher.Constraint("DistanceY", 4, 1, 4, 2, 37.11956),
    Sketcher.Constraint("DistanceY", 12, 3, -1, 1, 65.4825),
    Sketcher.Constraint("DistanceY", 36, 3, -1, 1, 57.8625),
    Sketcher.Constraint("DistanceY", 41, 3, -1, 1, 281.8625),
    Sketcher.Constraint("DistanceX", 0, 2, 0, 1, 54.910047),
])
pocket2 = body.newObject("PartDesign::Pocket", "Pocket001")
pocket2.Profile = sketch4
pocket2.Type = "ThroughAll"

doc.recompute()
